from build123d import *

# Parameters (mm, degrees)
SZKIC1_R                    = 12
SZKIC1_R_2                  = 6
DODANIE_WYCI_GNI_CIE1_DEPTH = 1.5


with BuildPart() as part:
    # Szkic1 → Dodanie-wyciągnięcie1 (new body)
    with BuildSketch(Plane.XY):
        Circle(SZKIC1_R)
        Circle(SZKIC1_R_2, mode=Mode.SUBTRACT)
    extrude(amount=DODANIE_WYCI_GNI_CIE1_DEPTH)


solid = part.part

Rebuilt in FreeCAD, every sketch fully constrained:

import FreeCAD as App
import Part
import Sketcher
Q = App.Units.Quantity

doc = App.newDocument("Part")
body = doc.addObject("PartDesign::Body", "Body")

# Sketch on XY plane
sketch1 = body.newObject("Sketcher::SketchObject", "Sketch")
sketch1.AttachmentSupport = (doc.getObject("XY_Plane"), [""])
sketch1.MapMode = "FlatFace"
sketch1.addGeometry([
    Part.Circle(App.Vector(0, 0, 0), App.Vector(0, 0, 1), 12),
    Part.Circle(App.Vector(0, 0, 0), App.Vector(0, 0, 1), 6),
], False)
sketch1.addConstraint([
    Sketcher.Constraint("Coincident", 0, 3, -1, 1),
    Sketcher.Constraint("Coincident", 1, 3, -1, 1),
    Sketcher.Constraint("Diameter", 0, Q("24 mm")),
    Sketcher.Constraint("Diameter", 1, Q("12 mm")),
])
pad1 = body.newObject("PartDesign::Pad", "Pad")
pad1.Profile = sketch1
pad1.Length = 1.5

doc.recompute()
